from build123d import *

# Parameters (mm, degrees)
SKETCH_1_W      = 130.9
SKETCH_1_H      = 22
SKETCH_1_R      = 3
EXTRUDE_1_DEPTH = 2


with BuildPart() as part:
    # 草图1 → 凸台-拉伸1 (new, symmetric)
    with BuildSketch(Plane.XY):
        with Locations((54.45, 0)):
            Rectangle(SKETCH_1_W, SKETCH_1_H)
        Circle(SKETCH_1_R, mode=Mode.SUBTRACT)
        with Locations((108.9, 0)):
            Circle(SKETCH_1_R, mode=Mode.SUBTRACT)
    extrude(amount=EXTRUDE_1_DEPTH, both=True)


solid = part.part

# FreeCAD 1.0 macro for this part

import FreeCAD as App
import Part
import Sketcher

V = App.Vector


def add_polygon(sketch, points):
    """Adds a closed chain of lines whose ends are joined by coincident constraints."""
    first, n = sketch.GeometryCount, len(points)
    for a, b in zip(points, points[1:] + points[:1]):
        sketch.addGeometry(Part.LineSegment(App.Vector(*a, 0), App.Vector(*b, 0)), False)
    for i in range(n):
        sketch.addConstraint(Sketcher.Constraint("Coincident", first + i, 2, first + (i + 1) % n, 1))

doc = App.newDocument("Part")
params = doc.addObject("Spreadsheet::Sheet", "Params")
for row, (alias, value) in enumerate([
    ("sketch1_diameter", "6 mm"),
    ("sketch1_height", "22 mm"),
    ("sketch1_width", "130.9 mm"),
    ("pad1_length", "4 mm"),
], start=1):
    params.set(f"A{row}", alias)
    params.set(f"B{row}", "=" + value)
    params.setAlias(f"B{row}", alias)

body = doc.addObject("PartDesign::Body", "Body")

sketch1 = body.newObject("Sketcher::SketchObject", "Sketch")
sketch1.AttachmentSupport = (doc.getObject("XY_Plane"), [""])
sketch1.MapMode = "FlatFace"
add_polygon(sketch1, [(-11, 11), (-11, -11), (119.9, -11), (119.9, 11)])
sketch1.addGeometry(Part.Circle(V(0, 0, 0), V(0, 0, 1), 3), False)
sketch1.addGeometry(Part.Circle(V(108.9, 0, 0), V(0, 0, 1), 3), False)
sketch1.addConstraint([
    Sketcher.Constraint("Vertical", 0),
    Sketcher.Constraint("Horizontal", 1),
    Sketcher.Constraint("Vertical", 2),
    Sketcher.Constraint("Horizontal", 3),
    Sketcher.Constraint("Coincident", 4, 3, -1, 1),
    Sketcher.Constraint("Equal", 4, 5),
    Sketcher.Constraint("PointOnObject", 5, 3, -1),
    Sketcher.Constraint("Diameter", 4, 6.0),
    Sketcher.Constraint("DistanceY", 0, 2, 0, 1, 22.0),
    Sketcher.Constraint("DistanceX", 1, 1, 1, 2, 130.9),
    Sketcher.Constraint("DistanceX", 0, 2, -1, 1, 11.0),
    Sketcher.Constraint("DistanceY", 0, 2, -1, 1, 11.0),
    Sketcher.Constraint("DistanceX", 5, 3, 1, 2, 11.0),
])
sketch1.setExpression("Constraints[11]", "Params.sketch1_diameter")
sketch1.setExpression("Constraints[12]", "Params.sketch1_height")
sketch1.setExpression("Constraints[13]", "Params.sketch1_width")
pad1 = body.newObject("PartDesign::Pad", "Pad")
pad1.Profile = sketch1
pad1.setExpression("Length", "Params.pad1_length")
pad1.Midplane = True

doc.recompute()
